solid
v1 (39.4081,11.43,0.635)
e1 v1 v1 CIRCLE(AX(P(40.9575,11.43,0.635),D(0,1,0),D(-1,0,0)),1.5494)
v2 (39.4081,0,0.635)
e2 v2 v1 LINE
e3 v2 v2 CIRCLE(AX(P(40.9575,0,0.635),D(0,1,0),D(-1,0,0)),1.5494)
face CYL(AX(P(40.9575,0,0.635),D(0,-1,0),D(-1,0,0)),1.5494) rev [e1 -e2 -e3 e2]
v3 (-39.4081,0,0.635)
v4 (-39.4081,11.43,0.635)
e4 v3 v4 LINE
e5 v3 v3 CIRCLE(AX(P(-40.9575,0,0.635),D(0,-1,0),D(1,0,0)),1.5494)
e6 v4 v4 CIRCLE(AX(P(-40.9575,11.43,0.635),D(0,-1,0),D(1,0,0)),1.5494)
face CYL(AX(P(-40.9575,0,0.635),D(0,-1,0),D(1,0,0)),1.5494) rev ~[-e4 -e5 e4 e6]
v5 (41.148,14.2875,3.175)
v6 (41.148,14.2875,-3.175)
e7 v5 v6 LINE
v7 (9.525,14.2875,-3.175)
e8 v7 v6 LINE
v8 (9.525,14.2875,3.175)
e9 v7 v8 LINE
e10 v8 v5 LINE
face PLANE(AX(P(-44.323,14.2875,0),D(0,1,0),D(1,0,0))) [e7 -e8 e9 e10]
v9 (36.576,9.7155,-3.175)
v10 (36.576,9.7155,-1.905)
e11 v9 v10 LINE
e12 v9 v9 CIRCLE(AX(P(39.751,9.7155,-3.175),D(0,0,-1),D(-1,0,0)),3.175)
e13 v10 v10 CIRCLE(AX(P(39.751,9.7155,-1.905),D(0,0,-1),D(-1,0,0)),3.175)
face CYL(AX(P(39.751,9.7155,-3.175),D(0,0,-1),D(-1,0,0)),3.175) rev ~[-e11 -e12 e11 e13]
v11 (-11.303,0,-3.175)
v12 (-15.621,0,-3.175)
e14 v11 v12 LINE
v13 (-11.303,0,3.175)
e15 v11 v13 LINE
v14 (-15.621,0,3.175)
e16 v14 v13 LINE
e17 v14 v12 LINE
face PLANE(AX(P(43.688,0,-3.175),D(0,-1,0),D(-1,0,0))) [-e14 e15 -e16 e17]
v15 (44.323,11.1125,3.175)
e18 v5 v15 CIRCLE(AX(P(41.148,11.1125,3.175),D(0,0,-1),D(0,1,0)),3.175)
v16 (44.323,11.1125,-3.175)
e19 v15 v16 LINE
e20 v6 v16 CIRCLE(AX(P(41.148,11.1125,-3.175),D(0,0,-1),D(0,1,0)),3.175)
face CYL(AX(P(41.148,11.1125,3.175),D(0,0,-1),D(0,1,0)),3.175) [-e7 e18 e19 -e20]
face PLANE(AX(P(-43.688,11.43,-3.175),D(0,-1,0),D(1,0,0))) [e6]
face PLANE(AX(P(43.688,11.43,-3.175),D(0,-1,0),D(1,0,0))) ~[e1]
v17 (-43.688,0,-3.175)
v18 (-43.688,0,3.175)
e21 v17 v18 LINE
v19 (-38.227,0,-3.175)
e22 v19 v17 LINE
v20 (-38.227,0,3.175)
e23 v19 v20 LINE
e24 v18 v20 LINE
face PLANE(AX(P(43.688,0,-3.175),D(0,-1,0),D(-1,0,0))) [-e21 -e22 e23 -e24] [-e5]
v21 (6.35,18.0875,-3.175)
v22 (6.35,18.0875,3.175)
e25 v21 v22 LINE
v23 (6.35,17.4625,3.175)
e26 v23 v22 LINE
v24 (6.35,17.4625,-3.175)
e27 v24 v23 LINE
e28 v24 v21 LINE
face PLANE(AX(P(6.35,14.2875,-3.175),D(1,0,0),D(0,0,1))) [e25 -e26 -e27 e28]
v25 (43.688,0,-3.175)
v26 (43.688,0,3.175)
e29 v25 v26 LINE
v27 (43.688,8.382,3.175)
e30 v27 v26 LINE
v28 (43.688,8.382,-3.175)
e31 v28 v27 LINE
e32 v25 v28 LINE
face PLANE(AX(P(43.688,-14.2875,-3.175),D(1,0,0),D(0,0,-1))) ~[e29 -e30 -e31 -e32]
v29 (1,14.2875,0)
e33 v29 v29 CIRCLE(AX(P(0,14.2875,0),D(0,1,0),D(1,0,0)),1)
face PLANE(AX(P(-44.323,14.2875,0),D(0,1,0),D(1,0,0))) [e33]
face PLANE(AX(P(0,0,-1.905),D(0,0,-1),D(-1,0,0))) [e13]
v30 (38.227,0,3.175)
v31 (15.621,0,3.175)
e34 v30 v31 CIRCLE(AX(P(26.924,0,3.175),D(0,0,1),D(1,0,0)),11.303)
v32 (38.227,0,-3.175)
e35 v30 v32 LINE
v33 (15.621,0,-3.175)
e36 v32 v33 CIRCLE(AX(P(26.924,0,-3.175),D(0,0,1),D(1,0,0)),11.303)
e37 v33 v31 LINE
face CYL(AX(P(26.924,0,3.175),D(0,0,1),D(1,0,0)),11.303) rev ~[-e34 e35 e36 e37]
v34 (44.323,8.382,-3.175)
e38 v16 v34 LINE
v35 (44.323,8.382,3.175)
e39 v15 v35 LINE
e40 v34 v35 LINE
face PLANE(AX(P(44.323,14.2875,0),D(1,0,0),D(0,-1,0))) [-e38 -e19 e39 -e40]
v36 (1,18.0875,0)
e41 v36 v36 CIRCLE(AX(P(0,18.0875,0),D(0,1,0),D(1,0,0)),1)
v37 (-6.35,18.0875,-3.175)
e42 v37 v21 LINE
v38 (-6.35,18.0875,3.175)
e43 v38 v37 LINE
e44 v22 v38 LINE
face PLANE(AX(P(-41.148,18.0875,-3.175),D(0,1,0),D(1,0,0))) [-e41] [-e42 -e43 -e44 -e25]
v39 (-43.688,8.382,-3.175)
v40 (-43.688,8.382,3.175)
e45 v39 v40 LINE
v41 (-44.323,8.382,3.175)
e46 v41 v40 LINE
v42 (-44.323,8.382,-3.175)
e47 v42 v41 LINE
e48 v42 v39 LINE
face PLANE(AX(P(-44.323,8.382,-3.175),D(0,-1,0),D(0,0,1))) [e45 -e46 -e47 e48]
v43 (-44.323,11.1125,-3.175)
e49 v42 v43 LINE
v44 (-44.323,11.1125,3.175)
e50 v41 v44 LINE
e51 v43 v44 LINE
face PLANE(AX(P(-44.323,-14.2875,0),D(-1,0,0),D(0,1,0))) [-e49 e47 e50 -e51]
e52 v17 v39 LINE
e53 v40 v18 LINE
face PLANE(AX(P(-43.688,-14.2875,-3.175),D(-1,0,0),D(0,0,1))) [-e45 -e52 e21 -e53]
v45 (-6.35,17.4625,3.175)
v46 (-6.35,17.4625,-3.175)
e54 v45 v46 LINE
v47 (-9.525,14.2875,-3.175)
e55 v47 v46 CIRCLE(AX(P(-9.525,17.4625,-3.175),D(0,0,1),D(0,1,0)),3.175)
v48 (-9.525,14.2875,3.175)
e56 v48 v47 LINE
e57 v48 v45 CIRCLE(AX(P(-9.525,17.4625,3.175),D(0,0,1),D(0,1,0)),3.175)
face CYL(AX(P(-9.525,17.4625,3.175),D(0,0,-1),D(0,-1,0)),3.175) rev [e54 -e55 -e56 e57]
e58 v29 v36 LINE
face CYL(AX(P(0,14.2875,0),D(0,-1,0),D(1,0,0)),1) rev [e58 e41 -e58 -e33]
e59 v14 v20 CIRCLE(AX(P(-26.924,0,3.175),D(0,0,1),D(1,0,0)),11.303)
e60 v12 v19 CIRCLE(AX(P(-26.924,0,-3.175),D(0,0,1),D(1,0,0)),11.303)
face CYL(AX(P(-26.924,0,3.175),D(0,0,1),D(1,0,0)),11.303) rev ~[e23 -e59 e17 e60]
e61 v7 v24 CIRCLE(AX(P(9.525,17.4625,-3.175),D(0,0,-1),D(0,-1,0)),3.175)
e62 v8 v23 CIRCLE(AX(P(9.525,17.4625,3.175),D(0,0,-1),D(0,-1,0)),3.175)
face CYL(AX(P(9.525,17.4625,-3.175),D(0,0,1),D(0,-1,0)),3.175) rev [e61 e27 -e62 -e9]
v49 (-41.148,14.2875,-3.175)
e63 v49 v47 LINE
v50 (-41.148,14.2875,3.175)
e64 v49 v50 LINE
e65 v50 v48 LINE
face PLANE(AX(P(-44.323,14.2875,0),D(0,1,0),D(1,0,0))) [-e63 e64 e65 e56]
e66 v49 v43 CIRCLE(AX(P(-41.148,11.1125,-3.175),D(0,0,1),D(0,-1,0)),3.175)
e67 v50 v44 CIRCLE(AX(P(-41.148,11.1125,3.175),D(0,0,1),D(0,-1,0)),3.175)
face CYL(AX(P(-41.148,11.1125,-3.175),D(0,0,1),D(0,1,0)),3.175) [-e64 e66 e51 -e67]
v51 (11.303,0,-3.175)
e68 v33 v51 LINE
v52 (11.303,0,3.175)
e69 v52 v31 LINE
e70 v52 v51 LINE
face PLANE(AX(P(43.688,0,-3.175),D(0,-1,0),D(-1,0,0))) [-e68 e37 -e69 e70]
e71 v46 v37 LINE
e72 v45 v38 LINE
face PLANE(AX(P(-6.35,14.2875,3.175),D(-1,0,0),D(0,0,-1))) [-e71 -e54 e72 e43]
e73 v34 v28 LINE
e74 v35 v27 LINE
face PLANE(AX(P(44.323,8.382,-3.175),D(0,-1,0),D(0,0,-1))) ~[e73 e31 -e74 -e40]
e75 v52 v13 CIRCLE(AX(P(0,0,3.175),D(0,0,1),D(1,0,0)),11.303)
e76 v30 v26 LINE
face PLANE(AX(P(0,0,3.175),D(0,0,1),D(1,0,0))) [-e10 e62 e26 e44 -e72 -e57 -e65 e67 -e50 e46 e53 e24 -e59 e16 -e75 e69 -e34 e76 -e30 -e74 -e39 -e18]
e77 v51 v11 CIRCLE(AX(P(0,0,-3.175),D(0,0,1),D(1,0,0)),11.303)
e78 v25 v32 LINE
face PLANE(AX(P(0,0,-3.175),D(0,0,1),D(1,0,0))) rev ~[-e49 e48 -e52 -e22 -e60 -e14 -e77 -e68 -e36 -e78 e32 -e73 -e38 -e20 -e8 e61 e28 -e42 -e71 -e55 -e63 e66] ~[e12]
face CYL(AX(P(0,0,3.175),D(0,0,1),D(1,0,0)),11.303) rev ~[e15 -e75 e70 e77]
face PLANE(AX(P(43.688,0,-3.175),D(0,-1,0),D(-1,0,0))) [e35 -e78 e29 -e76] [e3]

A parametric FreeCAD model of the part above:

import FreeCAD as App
import Part
import Sketcher

V = App.Vector
Q = App.Units.Quantity


def edges_at(feature, points):
    """Names of the edges that pass closest to the given points."""
    edges = feature.Shape.Edges
    near = lambda p: min(range(len(edges)), key=lambda i: edges[i].distToShape(Part.Vertex(*p))[0])
    return sorted({f"Edge{near(p) + 1}" for p in points})

doc = App.newDocument("Part")
params = doc.addObject("Spreadsheet::Sheet", "Params")
for row, (alias, value) in enumerate([
    ("sketch1_width", "3.49 in"),
    ("sketch1_height", "1.125 in"),
    ("pad1_length", "0.25 in"),
    ("sketch2_width", "0.66 in"),
    ("sketch2_height", "0.25 in"),
    ("pocket1_length", "0.025 in"),
    ("sketch3_diameter", "0.25 in"),
    ("pocket2_length", "0.05 in"),
    ("sketch4_diameter", "0.89 in"),
    ("pocket3_length", "1 in"),
    ("sketch5_width", "3.49 in"),
    ("sketch5_width2", "3.44 in"),
    ("sketch5_height", "0.33 in"),
    ("sketch6_diameter", "0.122 in"),
    ("pocket5_length", "0.45 in"),
    ("fillet_radius", "0.125 in"),
    ("sketch7_width", "0.5 in"),
    ("sketch7_height", "0.25 in"),
    ("pad2_length", "0.1496063 in"),
    ("fillet2_radius", "0.125 in"),
], start=1):
    params.set(f"A{row}", alias)
    params.set(f"B{row}", "=" + value)
    params.setAlias(f"B{row}", alias)

body = doc.addObject("PartDesign::Body", "Body")

# Sketch on XY plane
sketch1 = body.newObject("Sketcher::SketchObject", "Sketch")
sketch1.AttachmentSupport = (doc.getObject("XY_Plane"), [""])
sketch1.MapMode = "FlatFace"
sketch1.addGeometry([
    Part.LineSegment(V(44, 14, 0), V(-44, 14, 0)),
    Part.LineSegment(V(-44, 14, 0), V(-44, -14, 0)),
    Part.LineSegment(V(-44, -14, 0), V(44, -14, 0)),
    Part.LineSegment(V(44, -14, 0), V(44, 14, 0)),
], False)
sketch1.addConstraint([
    Sketcher.Constraint("Coincident", 0, 2, 1, 1),
    Sketcher.Constraint("Coincident", 1, 2, 2, 1),
    Sketcher.Constraint("Coincident", 2, 2, 3, 1),
    Sketcher.Constraint("Coincident", 3, 2, 0, 1),
    Sketcher.Constraint("Horizontal", 0),
    Sketcher.Constraint("Vertical", 1),
    Sketcher.Constraint("Horizontal", 2),
    Sketcher.Constraint("Vertical", 3),
    Sketcher.Constraint("Symmetric", 0, 2, 2, 2, -1, 1),
    Sketcher.Constraint("DistanceX", 0, 2, 0, 1, Q("3.49 in")),
    Sketcher.Constraint("DistanceY", 1, 2, 1, 1, Q("1.125 in")),
])
sketch1.setExpression("Constraints[9]", "Params.sketch1_width")
sketch1.setExpression("Constraints[10]", "Params.sketch1_height")
pad1 = body.newObject("PartDesign::Pad", "Pad")
pad1.Profile = sketch1
pad1.setExpression("Length", "Params.pad1_length")
pad1.Midplane = True

# Sketch on YZ plane
sketch2 = body.newObject("Sketcher::SketchObject", "Sketch001")
sketch2.AttachmentSupport = (doc.getObject("YZ_Plane"), [""])
sketch2.MapMode = "FlatFace"
sketch2.AttachmentOffset = App.Placement(V(0, 0, -1.745 * 25.4), App.Rotation())
sketch2.addGeometry([
    Part.LineSegment(V(8, -3, 0), V(-8, -3, 0)),
    Part.LineSegment(V(-8, -3, 0), V(-8, 3, 0)),
    Part.LineSegment(V(-8, 3, 0), V(8, 3, 0)),
    Part.LineSegment(V(8, 3, 0), V(8, -3, 0)),
], False)
sketch2.addConstraint([
    Sketcher.Constraint("Coincident", 0, 2, 1, 1),
    Sketcher.Constraint("Coincident", 1, 2, 2, 1),
    Sketcher.Constraint("Coincident", 2, 2, 3, 1),
    Sketcher.Constraint("Coincident", 3, 2, 0, 1),
    Sketcher.Constraint("Horizontal", 0),
    Sketcher.Constraint("Vertical", 1),
    Sketcher.Constraint("Horizontal", 2),
    Sketcher.Constraint("Vertical", 3),
    Sketcher.Constraint("Symmetric", 0, 2, 2, 2, -1, 1),
    Sketcher.Constraint("DistanceX", 0, 2, 0, 1, Q("0.66 in")),
    Sketcher.Constraint("DistanceY", 1, 1, 1, 2, Q("0.25 in")),
])
sketch2.setExpression("Constraints[9]", "Params.sketch2_width")
sketch2.setExpression("Constraints[10]", "Params.sketch2_height")
pocket1 = body.newObject("PartDesign::Pocket", "Pocket")
pocket1.Profile = sketch2
pocket1.setExpression("Length", "Params.pocket1_length")
pocket1.Reversed = True
doc.recompute()

mirrored = body.newObject("PartDesign::Mirrored", "Mirrored")
mirrored.Originals = [pocket1]
mirrored.MirrorPlane = (doc.getObject("YZ_Plane"), [""])
body.Tip = mirrored

# Sketch on XY plane
sketch3 = body.newObject("Sketcher::SketchObject", "Sketch002")
sketch3.AttachmentSupport = (doc.getObject("XY_Plane"), [""])
sketch3.MapMode = "FlatFace"
sketch3.AttachmentOffset = App.Placement(V(0, 0, -0.125 * 25.4), App.Rotation())
sketch3.addGeometry(Part.Circle(V(39.8, 9.7, 0), V(0, 0, 1), 3.2), False)
sketch3.addConstraint([
    Sketcher.Constraint("Diameter", 0, Q("0.25 in")),
    Sketcher.Constraint("DistanceX", -1, 1, 0, 3, Q("1.565 in")),
    Sketcher.Constraint("DistanceY", -1, 1, 0, 3, Q("0.3825 in")),
])
sketch3.setExpression("Constraints[0]", "Params.sketch3_diameter")
pocket2 = body.newObject("PartDesign::Pocket", "Pocket001")
pocket2.Profile = sketch3
pocket2.setExpression("Length", "Params.pocket2_length")
pocket2.Reversed = True

# Sketch on XY plane
sketch4 = body.newObject("Sketcher::SketchObject", "Sketch003")
sketch4.AttachmentSupport = (doc.getObject("XY_Plane"), [""])
sketch4.MapMode = "FlatFace"
sketch4.AttachmentOffset = App.Placement(V(0, 0, 0.125 * 25.4), App.Rotation())
sketch4.addGeometry([
    Part.Circle(V(-27, 0, 0), V(0, 0, 1), 11),
    Part.Circle(V(0, 0, 0), V(0, 0, 1), 11),
    Part.Circle(V(27, 0, 0), V(0, 0, 1), 11),
], False)
sketch4.addConstraint([
    Sketcher.Constraint("Coincident", 1, 3, -1, 1),
    Sketcher.Constraint("Equal", 0, 1),
    Sketcher.Constraint("Equal", 1, 2),
    Sketcher.Constraint("Symmetric", 0, 3, 2, 3, -1, 1),
    Sketcher.Constraint("PointOnObject", 0, 3, -1),
    Sketcher.Constraint("Diameter", 0, Q("0.89 in")),
    Sketcher.Constraint("DistanceX", 0, 3, -1, 1, Q("1.06 in")),
])
sketch4.setExpression("Constraints[5]", "Params.sketch4_diameter")
pocket3 = body.newObject("PartDesign::Pocket", "Pocket002")
pocket3.Profile = sketch4
pocket3.setExpression("Length", "Params.pocket3_length")

# Sketch on XY plane
sketch5 = body.newObject("Sketcher::SketchObject", "Sketch004")
sketch5.AttachmentSupport = (doc.getObject("XY_Plane"), [""])
sketch5.MapMode = "FlatFace"
sketch5.AttachmentOffset = App.Placement(V(0, 0, -0.125 * 25.4), App.Rotation())
sketch5.addGeometry([
    Part.LineSegment(V(44.3, -8.4, 0), V(44.3, -14.3, 0)),  # 0
    Part.LineSegment(V(44.3, -14.3, 0), V(-44.3, -14.3, 0)),  # 1
    Part.LineSegment(V(-44.3, -14.3, 0), V(-44.3, -8.4, 0)),  # 2
    Part.LineSegment(V(-44.3, -8.4, 0), V(-43.7, -8.4, 0)),  # 3
    Part.LineSegment(V(-43.7, -8.4, 0), V(-43.7, 0, 0)),  # 4
    Part.LineSegment(V(-43.7, 0, 0), V(43.7, 0, 0)),  # 5
    Part.LineSegment(V(43.7, 0, 0), V(43.7, -8.4, 0)),  # 6
    Part.LineSegment(V(43.7, -8.4, 0), V(44.3, -8.4, 0)),  # 7
], False)
sketch5.addConstraint([
    Sketcher.Constraint("Coincident", 0, 2, 1, 1),
    Sketcher.Constraint("Coincident", 1, 2, 2, 1),
    Sketcher.Constraint("Coincident", 2, 2, 3, 1),
    Sketcher.Constraint("Coincident", 3, 2, 4, 1),
    Sketcher.Constraint("Coincident", 4, 2, 5, 1),
    Sketcher.Constraint("Coincident", 5, 2, 6, 1),
    Sketcher.Constraint("Coincident", 6, 2, 7, 1),
    Sketcher.Constraint("Coincident", 7, 2, 0, 1),
    Sketcher.Constraint("Vertical", 0),
    Sketcher.Constraint("Horizontal", 1),
    Sketcher.Constraint("Vertical", 2),
    Sketcher.Constraint("Horizontal", 3),
    Sketcher.Constraint("Vertical", 4),
    Sketcher.Constraint("Horizontal", 5),
    Sketcher.Constraint("Vertical", 6),
    Sketcher.Constraint("Horizontal", 7),
    Sketcher.Constraint("Symmetric", 4, 2, 5, 2, -1, 1),
    Sketcher.Constraint("Symmetric", 2, 2, 7, 2, -2),
    Sketcher.Constraint("DistanceX", 1, 2, 1, 1, Q("3.49 in")),
    Sketcher.Constraint("DistanceX", 5, 1, 5, 2, Q("3.44 in")),
    Sketcher.Constraint("DistanceY", 4, 1, 4, 2, Q("0.33 in")),
    Sketcher.Constraint("DistanceY", 0, 2, 0, 1, Q("0.2325 in")),
])
sketch5.setExpression("Constraints[18]", "Params.sketch5_width")
sketch5.setExpression("Constraints[19]", "Params.sketch5_width2")
sketch5.setExpression("Constraints[20]", "Params.sketch5_height")
pocket4 = body.newObject("PartDesign::Pocket", "Pocket003")
pocket4.Profile = sketch5
pocket4.Type = "ThroughAll"
pocket4.Reversed = True

# Sketch on XZ plane
sketch6 = body.newObject("Sketcher::SketchObject", "Sketch005")
sketch6.AttachmentSupport = (doc.getObject("XZ_Plane"), [""])
sketch6.MapMode = "FlatFace"
sketch6.addGeometry(Part.Circle(V(-41, 0.6, 0), V(0, 0, 1), 1.5), False)
sketch6.addConstraint([
    Sketcher.Constraint("Diameter", 0, Q("0.122 in")),
    Sketcher.Constraint("DistanceY", -1, 1, 0, 3, Q("0.025 in")),
    Sketcher.Constraint("DistanceX", 0, 3, -1, 1, Q("1.6125 in")),
])
sketch6.setExpression("Constraints[0]", "Params.sketch6_diameter")
pocket5 = body.newObject("PartDesign::Pocket", "Pocket004")
pocket5.Profile = sketch6
pocket5.setExpression("Length", "Params.pocket5_length")
doc.recompute()

mirrored2 = body.newObject("PartDesign::Mirrored", "Mirrored001")
mirrored2.Originals = [pocket5]
mirrored2.MirrorPlane = (doc.getObject("YZ_Plane"), [""])
body.Tip = mirrored2
doc.recompute()

fillet = body.newObject("PartDesign::Fillet", "Fillet")
fillet.Base = (mirrored2, edges_at(mirrored2, [(-44.323, 14.287, 0), (44.323, 14.287, 0)]))
fillet.setExpression("Radius", "Params.fillet_radius")

# Sketch on XZ plane
sketch7 = body.newObject("Sketcher::SketchObject", "Sketch006")
sketch7.AttachmentSupport = (doc.getObject("XZ_Plane"), [""])
sketch7.MapMode = "FlatFace"
sketch7.AttachmentOffset = App.Placement(V(0, 0, -0.5625 * 25.4), App.Rotation())
sketch7.addGeometry([
    Part.LineSegment(V(-6.3, 3.2, 0), V(6.3, 3.2, 0)),  # 0
    Part.LineSegment(V(6.3, 3.2, 0), V(6.3, -3.2, 0)),  # 1
    Part.LineSegment(V(6.3, -3.2, 0), V(-6.3, -3.2, 0)),  # 2
    Part.LineSegment(V(-6.3, -3.2, 0), V(-6.3, 3.2, 0)),  # 3
    Part.Circle(V(0, 0, 0), V(0, 0, 1), 1),  # 4
], False)
sketch7.addConstraint([
    Sketcher.Constraint("Coincident", 0, 2, 1, 1),
    Sketcher.Constraint("Coincident", 1, 2, 2, 1),
    Sketcher.Constraint("Coincident", 2, 2, 3, 1),
    Sketcher.Constraint("Coincident", 3, 2, 0, 1),
    Sketcher.Constraint("Horizontal", 0),
    Sketcher.Constraint("Vertical", 1),
    Sketcher.Constraint("Horizontal", 2),
    Sketcher.Constraint("Vertical", 3),
    Sketcher.Constraint("Coincident", 4, 3, -1, 1),
    Sketcher.Constraint("Symmetric", 0, 2, 2, 2, -1, 1),
    Sketcher.Constraint("DistanceX", 0, 1, 0, 2, Q("0.5 in")),
    Sketcher.Constraint("DistanceY", 1, 2, 1, 1, Q("0.25 in")),
    Sketcher.Constraint("Diameter", 4, Q("2 mm")),
])
sketch7.setExpression("Constraints[10]", "Params.sketch7_width")
sketch7.setExpression("Constraints[11]", "Params.sketch7_height")
pad2 = body.newObject("PartDesign::Pad", "Pad001")
pad2.Profile = sketch7
pad2.setExpression("Length", "Params.pad2_length")
pad2.Reversed = True
doc.recompute()

fillet2 = body.newObject("PartDesign::Fillet", "Fillet001")
fillet2.Base = (pad2, edges_at(pad2, [(6.35, 14.287, 0), (-6.35, 14.287, 0)]))
fillet2.setExpression("Radius", "Params.fillet2_radius")

doc.recompute()
